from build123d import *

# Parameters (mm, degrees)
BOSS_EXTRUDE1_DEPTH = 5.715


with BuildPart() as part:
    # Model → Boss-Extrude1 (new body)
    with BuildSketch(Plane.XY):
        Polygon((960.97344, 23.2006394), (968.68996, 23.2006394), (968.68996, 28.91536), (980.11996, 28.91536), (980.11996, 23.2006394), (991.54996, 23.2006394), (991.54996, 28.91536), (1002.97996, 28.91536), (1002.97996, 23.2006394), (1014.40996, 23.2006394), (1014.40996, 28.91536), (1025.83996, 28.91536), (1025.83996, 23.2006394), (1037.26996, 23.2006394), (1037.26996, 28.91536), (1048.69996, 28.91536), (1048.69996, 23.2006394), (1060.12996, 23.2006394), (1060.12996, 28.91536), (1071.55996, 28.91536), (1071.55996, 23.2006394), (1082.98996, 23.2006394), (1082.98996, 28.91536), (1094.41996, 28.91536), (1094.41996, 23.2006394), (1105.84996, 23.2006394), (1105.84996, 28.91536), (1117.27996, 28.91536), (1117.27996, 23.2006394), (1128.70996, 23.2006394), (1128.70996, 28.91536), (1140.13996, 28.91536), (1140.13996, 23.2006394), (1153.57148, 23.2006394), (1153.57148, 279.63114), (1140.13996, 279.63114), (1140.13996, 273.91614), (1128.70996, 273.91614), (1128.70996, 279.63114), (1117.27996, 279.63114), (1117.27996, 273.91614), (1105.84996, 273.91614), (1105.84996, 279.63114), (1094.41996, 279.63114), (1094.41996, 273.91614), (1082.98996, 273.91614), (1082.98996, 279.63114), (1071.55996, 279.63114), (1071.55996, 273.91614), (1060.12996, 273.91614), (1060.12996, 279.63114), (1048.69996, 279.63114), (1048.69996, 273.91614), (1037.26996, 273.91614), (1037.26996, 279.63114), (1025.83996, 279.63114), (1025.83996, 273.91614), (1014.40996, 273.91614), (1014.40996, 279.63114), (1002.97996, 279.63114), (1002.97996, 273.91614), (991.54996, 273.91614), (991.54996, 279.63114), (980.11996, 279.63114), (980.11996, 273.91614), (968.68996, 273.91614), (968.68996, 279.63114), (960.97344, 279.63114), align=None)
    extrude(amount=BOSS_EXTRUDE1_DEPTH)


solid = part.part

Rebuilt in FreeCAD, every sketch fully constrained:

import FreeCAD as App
import Part
import Sketcher

V = App.Vector
Q = App.Units.Quantity


def add_polygon(sketch, points):
    """Adds a closed chain of lines whose ends are joined by coincident constraints."""
    first, n = sketch.GeometryCount, len(points)
    for a, b in zip(points, points[1:] + points[:1]):
        sketch.addGeometry(Part.LineSegment(App.Vector(*a, 0), App.Vector(*b, 0)), False)
    for i in range(n):
        sketch.addConstraint(Sketcher.Constraint("Coincident", first + i, 2, first + (i + 1) % n, 1))

doc = App.newDocument("Part")
params = doc.addObject("Spreadsheet::Sheet", "Params")
for row, (alias, value) in enumerate([
    ("sketch1_width", "0.45 in"),
    ("sketch1_height", "0.225 in"),
    ("pad1_length", "0.225 in"),
], start=1):
    params.set(f"A{row}", alias)
    params.set(f"B{row}", "=" + value)
    params.setAlias(f"B{row}", alias)

body = doc.addObject("PartDesign::Body", "Body")

# Sketch on XY plane
sketch1 = body.newObject("Sketcher::SketchObject", "Sketch")
sketch1.AttachmentSupport = (doc.getObject("XY_Plane"), [""])
sketch1.MapMode = "FlatFace"
add_polygon(sketch1, [(960.97344, 23.200639), (968.68996, 23.200639), (968.68996, 28.91536), (980.11996, 28.91536), (980.11996, 23.200639), (991.54996, 23.200639), (991.54996, 28.91536), (1002.97996, 28.91536), (1002.97996, 23.200639), (1014.40996, 23.200639), (1014.40996, 28.91536), (1025.83996, 28.91536), (1025.83996, 23.200639), (1037.26996, 23.200639), (1037.26996, 28.91536), (1048.69996, 28.91536), (1048.69996, 23.200639), (1060.12996, 23.200639), (1060.12996, 28.91536), (1071.55996, 28.91536), (1071.55996, 23.200639), (1082.98996, 23.200639), (1082.98996, 28.91536), (1094.41996, 28.91536), (1094.41996, 23.200639), (1105.84996, 23.200639), (1105.84996, 28.91536), (1117.27996, 28.91536), (1117.27996, 23.200639), (1128.70996, 23.200639), (1128.70996, 28.91536), (1140.13996, 28.91536), (1140.13996, 23.200639), (1153.57148, 23.200639), (1153.57148, 279.63114), (1140.13996, 279.63114), (1140.13996, 273.91614), (1128.70996, 273.91614), (1128.70996, 279.63114), (1117.27996, 279.63114), (1117.27996, 273.91614), (1105.84996, 273.91614), (1105.84996, 279.63114), (1094.41996, 279.63114), (1094.41996, 273.91614), (1082.98996, 273.91614), (1082.98996, 279.63114), (1071.55996, 279.63114), (1071.55996, 273.91614), (1060.12996, 273.91614), (1060.12996, 279.63114), (1048.69996, 279.63114), (1048.69996, 273.91614), (1037.26996, 273.91614), (1037.26996, 279.63114), (1025.83996, 279.63114), (1025.83996, 273.91614), (1014.40996, 273.91614), (1014.40996, 279.63114), (1002.97996, 279.63114), (1002.97996, 273.91614), (991.54996, 273.91614), (991.54996, 279.63114), (980.11996, 279.63114), (980.11996, 273.91614), (968.68996, 273.91614), (968.68996, 279.63114), (960.97344, 279.63114)])  # lines 0-67
sketch1.addConstraint(Sketcher.Constraint("Horizontal", 0))
sketch1.addConstraint(Sketcher.Constraint("Vertical", 1))
sketch1.addConstraint(Sketcher.Constraint("Horizontal", 2))
sketch1.addConstraint(Sketcher.Constraint("Vertical", 3))
sketch1.addConstraint(Sketcher.Constraint("Horizontal", 4))
sketch1.addConstraint(Sketcher.Constraint("Vertical", 5))
sketch1.addConstraint(Sketcher.Constraint("Horizontal", 6))
sketch1.addConstraint(Sketcher.Constraint("Vertical", 7))
sketch1.addConstraint(Sketcher.Constraint("Horizontal", 8))
sketch1.addConstraint(Sketcher.Constraint("Vertical", 9))
sketch1.addConstraint(Sketcher.Constraint("Horizontal", 10))
sketch1.addConstraint(Sketcher.Constraint("Vertical", 11))
sketch1.addConstraint(Sketcher.Constraint("Horizontal", 12))
sketch1.addConstraint(Sketcher.Constraint("Vertical", 13))
sketch1.addConstraint(Sketcher.Constraint("Horizontal", 14))
sketch1.addConstraint(Sketcher.Constraint("Vertical", 15))
sketch1.addConstraint(Sketcher.Constraint("Horizontal", 16))
sketch1.addConstraint(Sketcher.Constraint("Vertical", 17))
sketch1.addConstraint(Sketcher.Constraint("Horizontal", 18))
sketch1.addConstraint(Sketcher.Constraint("Vertical", 19))
sketch1.addConstraint(Sketcher.Constraint("Horizontal", 20))
sketch1.addConstraint(Sketcher.Constraint("Vertical", 21))
sketch1.addConstraint(Sketcher.Constraint("Horizontal", 22))
sketch1.addConstraint(Sketcher.Constraint("Vertical", 23))
sketch1.addConstraint(Sketcher.Constraint("Horizontal", 24))
sketch1.addConstraint(Sketcher.Constraint("Vertical", 25))
sketch1.addConstraint(Sketcher.Constraint("Horizontal", 26))
sketch1.addConstraint(Sketcher.Constraint("Vertical", 27))
sketch1.addConstraint(Sketcher.Constraint("Horizontal", 28))
sketch1.addConstraint(Sketcher.Constraint("Vertical", 29))
sketch1.addConstraint(Sketcher.Constraint("Horizontal", 30))
sketch1.addConstraint(Sketcher.Constraint("Vertical", 31))
sketch1.addConstraint(Sketcher.Constraint("Horizontal", 32))
sketch1.addConstraint(Sketcher.Constraint("Vertical", 33))
sketch1.addConstraint(Sketcher.Constraint("Horizontal", 34))
sketch1.addConstraint(Sketcher.Constraint("Vertical", 35))
sketch1.addConstraint(Sketcher.Constraint("Horizontal", 36))
sketch1.addConstraint(Sketcher.Constraint("Vertical", 37))
sketch1.addConstraint(Sketcher.Constraint("Horizontal", 38))
sketch1.addConstraint(Sketcher.Constraint("Vertical", 39))
sketch1.addConstraint(Sketcher.Constraint("Horizontal", 40))
sketch1.addConstraint(Sketcher.Constraint("Vertical", 41))
sketch1.addConstraint(Sketcher.Constraint("Horizontal", 42))
sketch1.addConstraint(Sketcher.Constraint("Vertical", 43))
sketch1.addConstraint(Sketcher.Constraint("Horizontal", 44))
sketch1.addConstraint(Sketcher.Constraint("Vertical", 45))
sketch1.addConstraint(Sketcher.Constraint("Horizontal", 46))
sketch1.addConstraint(Sketcher.Constraint("Vertical", 47))
sketch1.addConstraint(Sketcher.Constraint("Horizontal", 48))
sketch1.addConstraint(Sketcher.Constraint("Vertical", 49))
sketch1.addConstraint(Sketcher.Constraint("Horizontal", 50))
sketch1.addConstraint(Sketcher.Constraint("Vertical", 51))
sketch1.addConstraint(Sketcher.Constraint("Horizontal", 52))
sketch1.addConstraint(Sketcher.Constraint("Vertical", 53))
sketch1.addConstraint(Sketcher.Constraint("Horizontal", 54))
sketch1.addConstraint(Sketcher.Constraint("Vertical", 55))
sketch1.addConstraint(Sketcher.Constraint("Horizontal", 56))
sketch1.addConstraint(Sketcher.Constraint("Vertical", 57))
sketch1.addConstraint(Sketcher.Constraint("Horizontal", 58))
sketch1.addConstraint(Sketcher.Constraint("Vertical", 59))
sketch1.addConstraint(Sketcher.Constraint("Horizontal", 60))
sketch1.addConstraint(Sketcher.Constraint("Vertical", 61))
sketch1.addConstraint(Sketcher.Constraint("Horizontal", 62))
sketch1.addConstraint(Sketcher.Constraint("Vertical", 63))
sketch1.addConstraint(Sketcher.Constraint("Horizontal", 64))
sketch1.addConstraint(Sketcher.Constraint("Vertical", 65))
sketch1.addConstraint(Sketcher.Constraint("Horizontal", 66))
sketch1.addConstraint(Sketcher.Constraint("Vertical", 67))
sketch1.addConstraint(Sketcher.Constraint("Horizontal", 0, 2, 3, 2))
sketch1.addConstraint(Sketcher.Constraint("Horizontal", 2, 2, 5, 2))
sketch1.addConstraint(Sketcher.Constraint("Horizontal", 4, 2, 7, 2))
sketch1.addConstraint(Sketcher.Constraint("Horizontal", 6, 2, 9, 2))
sketch1.addConstraint(Sketcher.Constraint("Horizontal", 8, 2, 11, 2))
sketch1.addConstraint(Sketcher.Constraint("Horizontal", 10, 2, 13, 2))
sketch1.addConstraint(Sketcher.Constraint("Horizontal", 12, 2, 15, 2))
sketch1.addConstraint(Sketcher.Constraint("Horizontal", 14, 2, 17, 2))
sketch1.addConstraint(Sketcher.Constraint("Horizontal", 16, 2, 19, 2))
sketch1.addConstraint(Sketcher.Constraint("Horizontal", 18, 2, 21, 2))
sketch1.addConstraint(Sketcher.Constraint("Horizontal", 20, 2, 23, 2))
sketch1.addConstraint(Sketcher.Constraint("Horizontal", 22, 2, 25, 2))
sketch1.addConstraint(Sketcher.Constraint("Horizontal", 24, 2, 27, 2))
sketch1.addConstraint(Sketcher.Constraint("Horizontal", 26, 2, 29, 2))
sketch1.addConstraint(Sketcher.Constraint("Horizontal", 28, 2, 31, 2))
sketch1.addConstraint(Sketcher.Constraint("Horizontal", 34, 2, 37, 2))
sketch1.addConstraint(Sketcher.Constraint("Horizontal", 36, 2, 39, 2))
sketch1.addConstraint(Sketcher.Constraint("Horizontal", 38, 2, 41, 2))
sketch1.addConstraint(Sketcher.Constraint("Horizontal", 40, 2, 43, 2))
sketch1.addConstraint(Sketcher.Constraint("Horizontal", 42, 2, 45, 2))
sketch1.addConstraint(Sketcher.Constraint("Horizontal", 44, 2, 47, 2))
sketch1.addConstraint(Sketcher.Constraint("Horizontal", 46, 2, 49, 2))
sketch1.addConstraint(Sketcher.Constraint("Horizontal", 48, 2, 51, 2))
sketch1.addConstraint(Sketcher.Constraint("Horizontal", 50, 2, 53, 2))
sketch1.addConstraint(Sketcher.Constraint("Horizontal", 52, 2, 55, 2))
sketch1.addConstraint(Sketcher.Constraint("Horizontal", 54, 2, 57, 2))
sketch1.addConstraint(Sketcher.Constraint("Horizontal", 56, 2, 59, 2))
sketch1.addConstraint(Sketcher.Constraint("Horizontal", 58, 2, 61, 2))
sketch1.addConstraint(Sketcher.Constraint("Horizontal", 60, 2, 63, 2))
sketch1.addConstraint(Sketcher.Constraint("Horizontal", 62, 2, 65, 2))
sketch1.addConstraint(Sketcher.Constraint("Vertical", 31, 2, 34, 2))
sketch1.addConstraint(Sketcher.Constraint("Vertical", 29, 2, 36, 2))
sketch1.addConstraint(Sketcher.Constraint("Vertical", 27, 2, 38, 2))
sketch1.addConstraint(Sketcher.Constraint("Vertical", 25, 2, 40, 2))
sketch1.addConstraint(Sketcher.Constraint("Vertical", 23, 2, 42, 2))
sketch1.addConstraint(Sketcher.Constraint("Vertical", 21, 2, 44, 2))
sketch1.addConstraint(Sketcher.Constraint("Vertical", 19, 2, 46, 2))
sketch1.addConstraint(Sketcher.Constraint("Vertical", 17, 2, 48, 2))
sketch1.addConstraint(Sketcher.Constraint("Vertical", 15, 2, 50, 2))
sketch1.addConstraint(Sketcher.Constraint("Vertical", 13, 2, 52, 2))
sketch1.addConstraint(Sketcher.Constraint("Vertical", 11, 2, 54, 2))
sketch1.addConstraint(Sketcher.Constraint("Vertical", 9, 2, 56, 2))
sketch1.addConstraint(Sketcher.Constraint("Vertical", 7, 2, 58, 2))
sketch1.addConstraint(Sketcher.Constraint("Vertical", 5, 2, 60, 2))
sketch1.addConstraint(Sketcher.Constraint("Vertical", 3, 2, 62, 2))
sketch1.addConstraint(Sketcher.Constraint("Vertical", 1, 2, 64, 2))
sketch1.addConstraint(Sketcher.Constraint("Equal", 2, 4))
sketch1.addConstraint(Sketcher.Constraint("Equal", 4, 6))
sketch1.addConstraint(Sketcher.Constraint("Equal", 6, 8))
sketch1.addConstraint(Sketcher.Constraint("Equal", 8, 10))
sketch1.addConstraint(Sketcher.Constraint("Equal", 10, 12))
sketch1.addConstraint(Sketcher.Constraint("Equal", 12, 14))
sketch1.addConstraint(Sketcher.Constraint("Equal", 14, 16))
sketch1.addConstraint(Sketcher.Constraint("Equal", 16, 18))
sketch1.addConstraint(Sketcher.Constraint("Equal", 18, 20))
sketch1.addConstraint(Sketcher.Constraint("Equal", 20, 22))
sketch1.addConstraint(Sketcher.Constraint("Equal", 22, 24))
sketch1.addConstraint(Sketcher.Constraint("Equal", 24, 26))
sketch1.addConstraint(Sketcher.Constraint("Equal", 26, 28))
sketch1.addConstraint(Sketcher.Constraint("Equal", 28, 30))
sketch1.addConstraint(Sketcher.Constraint("DistanceX", 2, 1, 2, 2, Q("0.45 in")))
sketch1.addConstraint(Sketcher.Constraint("DistanceY", 35, 2, 35, 1, Q("0.225 in")))
sketch1.addConstraint(Sketcher.Constraint("DistanceX", 0, 1, 0, 2, Q("0.3038 in")))
sketch1.addConstraint(Sketcher.Constraint("DistanceX", 32, 1, 32, 2, Q("0.5288 in")))
sketch1.addConstraint(Sketcher.Constraint("DistanceY", 33, 1, 33, 2, Q("256.430501 mm")))
sketch1.addConstraint(Sketcher.Constraint("DistanceX", -1, 1, 0, 2, Q("38.1374 in")))
sketch1.addConstraint(Sketcher.Constraint("DistanceY", -1, 1, 1, 2, Q("1.1384 in")))
sketch1.addConstraint(Sketcher.Constraint("DistanceY", -1, 1, 33, 2, Q("11.0091 in")))
sketch1.setExpression("Constraints[196]", "Params.sketch1_width")
sketch1.setExpression("Constraints[197]", "Params.sketch1_height")
pad1 = body.newObject("PartDesign::Pad", "Pad")
pad1.Profile = sketch1
pad1.setExpression("Length", "Params.pad1_length")

doc.recompute()
